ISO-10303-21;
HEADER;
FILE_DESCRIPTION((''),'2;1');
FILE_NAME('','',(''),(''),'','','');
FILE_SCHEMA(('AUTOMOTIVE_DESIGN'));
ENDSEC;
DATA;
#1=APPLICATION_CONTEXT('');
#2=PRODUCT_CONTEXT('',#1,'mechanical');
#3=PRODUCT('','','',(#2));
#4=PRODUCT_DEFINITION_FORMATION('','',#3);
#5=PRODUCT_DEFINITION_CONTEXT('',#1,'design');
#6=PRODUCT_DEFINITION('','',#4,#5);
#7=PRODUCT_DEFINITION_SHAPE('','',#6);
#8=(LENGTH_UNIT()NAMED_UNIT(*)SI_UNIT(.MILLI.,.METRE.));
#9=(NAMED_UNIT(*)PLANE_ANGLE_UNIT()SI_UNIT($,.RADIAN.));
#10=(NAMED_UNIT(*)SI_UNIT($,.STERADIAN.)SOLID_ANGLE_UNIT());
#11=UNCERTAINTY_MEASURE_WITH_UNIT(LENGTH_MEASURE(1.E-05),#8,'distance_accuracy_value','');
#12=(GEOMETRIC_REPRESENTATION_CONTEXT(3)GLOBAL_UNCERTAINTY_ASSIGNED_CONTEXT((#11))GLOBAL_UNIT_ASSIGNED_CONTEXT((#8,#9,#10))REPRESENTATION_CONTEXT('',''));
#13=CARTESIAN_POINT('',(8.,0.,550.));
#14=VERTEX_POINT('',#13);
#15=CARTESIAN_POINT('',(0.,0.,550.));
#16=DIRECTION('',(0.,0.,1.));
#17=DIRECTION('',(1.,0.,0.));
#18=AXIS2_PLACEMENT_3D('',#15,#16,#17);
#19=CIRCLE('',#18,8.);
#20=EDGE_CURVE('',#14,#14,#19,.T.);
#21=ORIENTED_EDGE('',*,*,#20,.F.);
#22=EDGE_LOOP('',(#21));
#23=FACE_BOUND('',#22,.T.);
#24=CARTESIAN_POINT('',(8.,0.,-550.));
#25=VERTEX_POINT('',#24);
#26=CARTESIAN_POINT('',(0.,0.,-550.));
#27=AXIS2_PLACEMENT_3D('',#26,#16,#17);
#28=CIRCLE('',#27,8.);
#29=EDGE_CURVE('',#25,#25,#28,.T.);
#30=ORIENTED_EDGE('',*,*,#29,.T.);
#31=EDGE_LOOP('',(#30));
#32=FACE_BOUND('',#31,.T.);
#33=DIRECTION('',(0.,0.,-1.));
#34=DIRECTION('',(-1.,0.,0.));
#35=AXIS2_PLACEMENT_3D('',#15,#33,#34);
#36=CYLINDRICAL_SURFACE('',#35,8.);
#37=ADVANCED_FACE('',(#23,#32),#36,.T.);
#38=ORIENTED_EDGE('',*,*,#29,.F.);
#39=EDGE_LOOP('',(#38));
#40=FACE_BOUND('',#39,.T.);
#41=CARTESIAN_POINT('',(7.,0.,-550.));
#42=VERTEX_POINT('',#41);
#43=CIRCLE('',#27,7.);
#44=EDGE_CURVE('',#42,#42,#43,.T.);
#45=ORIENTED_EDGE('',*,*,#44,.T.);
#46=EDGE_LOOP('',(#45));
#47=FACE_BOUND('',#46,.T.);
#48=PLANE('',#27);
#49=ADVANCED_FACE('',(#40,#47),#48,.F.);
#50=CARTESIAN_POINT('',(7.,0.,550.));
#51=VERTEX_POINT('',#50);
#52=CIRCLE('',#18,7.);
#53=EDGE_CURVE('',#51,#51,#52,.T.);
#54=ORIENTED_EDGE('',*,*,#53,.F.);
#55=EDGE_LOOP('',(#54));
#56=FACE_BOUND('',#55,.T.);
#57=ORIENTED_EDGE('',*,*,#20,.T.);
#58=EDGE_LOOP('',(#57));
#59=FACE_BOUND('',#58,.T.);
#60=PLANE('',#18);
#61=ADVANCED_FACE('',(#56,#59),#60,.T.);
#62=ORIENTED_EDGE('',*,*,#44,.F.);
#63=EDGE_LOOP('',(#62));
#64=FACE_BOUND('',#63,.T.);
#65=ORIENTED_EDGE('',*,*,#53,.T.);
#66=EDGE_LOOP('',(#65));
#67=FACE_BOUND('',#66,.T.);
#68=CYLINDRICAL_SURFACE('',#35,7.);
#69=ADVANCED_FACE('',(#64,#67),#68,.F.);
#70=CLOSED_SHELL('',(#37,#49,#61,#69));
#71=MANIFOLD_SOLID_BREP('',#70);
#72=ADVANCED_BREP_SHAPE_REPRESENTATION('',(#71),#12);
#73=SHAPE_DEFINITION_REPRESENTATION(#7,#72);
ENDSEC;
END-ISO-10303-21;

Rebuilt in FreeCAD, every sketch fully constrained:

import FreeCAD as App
import Part
import Sketcher
from FreeCAD import Vector
Q = App.Units.Quantity

doc = App.newDocument("Part")
body = doc.addObject("PartDesign::Body", "Body")

# Sketch on XY plane
sketch1 = body.newObject("Sketcher::SketchObject", "Sketch")
sketch1.AttachmentSupport = (doc.getObject("XY_Plane"), [""])
sketch1.MapMode = "FlatFace"
sketch1.addGeometry(Part.Circle(Vector(0, 0, 0), Vector(0, 0, 1), 8), False)
sketch1.addGeometry(Part.Circle(Vector(0, 0, 0), Vector(0, 0, 1), 7), False)
sketch1.addConstraint(Sketcher.Constraint("Coincident", 0, 3, -1, 1))
sketch1.addConstraint(Sketcher.Constraint("Coincident", 1, 3, -1, 1))
sketch1.addConstraint(Sketcher.Constraint("Diameter", 0, Q("16 mm")))
sketch1.addConstraint(Sketcher.Constraint("Diameter", 1, Q("14 mm")))
pad1 = body.newObject("PartDesign::Pad", "Pad")
pad1.Profile = sketch1
pad1.Length = 1100
pad1.Midplane = True

doc.recompute()
